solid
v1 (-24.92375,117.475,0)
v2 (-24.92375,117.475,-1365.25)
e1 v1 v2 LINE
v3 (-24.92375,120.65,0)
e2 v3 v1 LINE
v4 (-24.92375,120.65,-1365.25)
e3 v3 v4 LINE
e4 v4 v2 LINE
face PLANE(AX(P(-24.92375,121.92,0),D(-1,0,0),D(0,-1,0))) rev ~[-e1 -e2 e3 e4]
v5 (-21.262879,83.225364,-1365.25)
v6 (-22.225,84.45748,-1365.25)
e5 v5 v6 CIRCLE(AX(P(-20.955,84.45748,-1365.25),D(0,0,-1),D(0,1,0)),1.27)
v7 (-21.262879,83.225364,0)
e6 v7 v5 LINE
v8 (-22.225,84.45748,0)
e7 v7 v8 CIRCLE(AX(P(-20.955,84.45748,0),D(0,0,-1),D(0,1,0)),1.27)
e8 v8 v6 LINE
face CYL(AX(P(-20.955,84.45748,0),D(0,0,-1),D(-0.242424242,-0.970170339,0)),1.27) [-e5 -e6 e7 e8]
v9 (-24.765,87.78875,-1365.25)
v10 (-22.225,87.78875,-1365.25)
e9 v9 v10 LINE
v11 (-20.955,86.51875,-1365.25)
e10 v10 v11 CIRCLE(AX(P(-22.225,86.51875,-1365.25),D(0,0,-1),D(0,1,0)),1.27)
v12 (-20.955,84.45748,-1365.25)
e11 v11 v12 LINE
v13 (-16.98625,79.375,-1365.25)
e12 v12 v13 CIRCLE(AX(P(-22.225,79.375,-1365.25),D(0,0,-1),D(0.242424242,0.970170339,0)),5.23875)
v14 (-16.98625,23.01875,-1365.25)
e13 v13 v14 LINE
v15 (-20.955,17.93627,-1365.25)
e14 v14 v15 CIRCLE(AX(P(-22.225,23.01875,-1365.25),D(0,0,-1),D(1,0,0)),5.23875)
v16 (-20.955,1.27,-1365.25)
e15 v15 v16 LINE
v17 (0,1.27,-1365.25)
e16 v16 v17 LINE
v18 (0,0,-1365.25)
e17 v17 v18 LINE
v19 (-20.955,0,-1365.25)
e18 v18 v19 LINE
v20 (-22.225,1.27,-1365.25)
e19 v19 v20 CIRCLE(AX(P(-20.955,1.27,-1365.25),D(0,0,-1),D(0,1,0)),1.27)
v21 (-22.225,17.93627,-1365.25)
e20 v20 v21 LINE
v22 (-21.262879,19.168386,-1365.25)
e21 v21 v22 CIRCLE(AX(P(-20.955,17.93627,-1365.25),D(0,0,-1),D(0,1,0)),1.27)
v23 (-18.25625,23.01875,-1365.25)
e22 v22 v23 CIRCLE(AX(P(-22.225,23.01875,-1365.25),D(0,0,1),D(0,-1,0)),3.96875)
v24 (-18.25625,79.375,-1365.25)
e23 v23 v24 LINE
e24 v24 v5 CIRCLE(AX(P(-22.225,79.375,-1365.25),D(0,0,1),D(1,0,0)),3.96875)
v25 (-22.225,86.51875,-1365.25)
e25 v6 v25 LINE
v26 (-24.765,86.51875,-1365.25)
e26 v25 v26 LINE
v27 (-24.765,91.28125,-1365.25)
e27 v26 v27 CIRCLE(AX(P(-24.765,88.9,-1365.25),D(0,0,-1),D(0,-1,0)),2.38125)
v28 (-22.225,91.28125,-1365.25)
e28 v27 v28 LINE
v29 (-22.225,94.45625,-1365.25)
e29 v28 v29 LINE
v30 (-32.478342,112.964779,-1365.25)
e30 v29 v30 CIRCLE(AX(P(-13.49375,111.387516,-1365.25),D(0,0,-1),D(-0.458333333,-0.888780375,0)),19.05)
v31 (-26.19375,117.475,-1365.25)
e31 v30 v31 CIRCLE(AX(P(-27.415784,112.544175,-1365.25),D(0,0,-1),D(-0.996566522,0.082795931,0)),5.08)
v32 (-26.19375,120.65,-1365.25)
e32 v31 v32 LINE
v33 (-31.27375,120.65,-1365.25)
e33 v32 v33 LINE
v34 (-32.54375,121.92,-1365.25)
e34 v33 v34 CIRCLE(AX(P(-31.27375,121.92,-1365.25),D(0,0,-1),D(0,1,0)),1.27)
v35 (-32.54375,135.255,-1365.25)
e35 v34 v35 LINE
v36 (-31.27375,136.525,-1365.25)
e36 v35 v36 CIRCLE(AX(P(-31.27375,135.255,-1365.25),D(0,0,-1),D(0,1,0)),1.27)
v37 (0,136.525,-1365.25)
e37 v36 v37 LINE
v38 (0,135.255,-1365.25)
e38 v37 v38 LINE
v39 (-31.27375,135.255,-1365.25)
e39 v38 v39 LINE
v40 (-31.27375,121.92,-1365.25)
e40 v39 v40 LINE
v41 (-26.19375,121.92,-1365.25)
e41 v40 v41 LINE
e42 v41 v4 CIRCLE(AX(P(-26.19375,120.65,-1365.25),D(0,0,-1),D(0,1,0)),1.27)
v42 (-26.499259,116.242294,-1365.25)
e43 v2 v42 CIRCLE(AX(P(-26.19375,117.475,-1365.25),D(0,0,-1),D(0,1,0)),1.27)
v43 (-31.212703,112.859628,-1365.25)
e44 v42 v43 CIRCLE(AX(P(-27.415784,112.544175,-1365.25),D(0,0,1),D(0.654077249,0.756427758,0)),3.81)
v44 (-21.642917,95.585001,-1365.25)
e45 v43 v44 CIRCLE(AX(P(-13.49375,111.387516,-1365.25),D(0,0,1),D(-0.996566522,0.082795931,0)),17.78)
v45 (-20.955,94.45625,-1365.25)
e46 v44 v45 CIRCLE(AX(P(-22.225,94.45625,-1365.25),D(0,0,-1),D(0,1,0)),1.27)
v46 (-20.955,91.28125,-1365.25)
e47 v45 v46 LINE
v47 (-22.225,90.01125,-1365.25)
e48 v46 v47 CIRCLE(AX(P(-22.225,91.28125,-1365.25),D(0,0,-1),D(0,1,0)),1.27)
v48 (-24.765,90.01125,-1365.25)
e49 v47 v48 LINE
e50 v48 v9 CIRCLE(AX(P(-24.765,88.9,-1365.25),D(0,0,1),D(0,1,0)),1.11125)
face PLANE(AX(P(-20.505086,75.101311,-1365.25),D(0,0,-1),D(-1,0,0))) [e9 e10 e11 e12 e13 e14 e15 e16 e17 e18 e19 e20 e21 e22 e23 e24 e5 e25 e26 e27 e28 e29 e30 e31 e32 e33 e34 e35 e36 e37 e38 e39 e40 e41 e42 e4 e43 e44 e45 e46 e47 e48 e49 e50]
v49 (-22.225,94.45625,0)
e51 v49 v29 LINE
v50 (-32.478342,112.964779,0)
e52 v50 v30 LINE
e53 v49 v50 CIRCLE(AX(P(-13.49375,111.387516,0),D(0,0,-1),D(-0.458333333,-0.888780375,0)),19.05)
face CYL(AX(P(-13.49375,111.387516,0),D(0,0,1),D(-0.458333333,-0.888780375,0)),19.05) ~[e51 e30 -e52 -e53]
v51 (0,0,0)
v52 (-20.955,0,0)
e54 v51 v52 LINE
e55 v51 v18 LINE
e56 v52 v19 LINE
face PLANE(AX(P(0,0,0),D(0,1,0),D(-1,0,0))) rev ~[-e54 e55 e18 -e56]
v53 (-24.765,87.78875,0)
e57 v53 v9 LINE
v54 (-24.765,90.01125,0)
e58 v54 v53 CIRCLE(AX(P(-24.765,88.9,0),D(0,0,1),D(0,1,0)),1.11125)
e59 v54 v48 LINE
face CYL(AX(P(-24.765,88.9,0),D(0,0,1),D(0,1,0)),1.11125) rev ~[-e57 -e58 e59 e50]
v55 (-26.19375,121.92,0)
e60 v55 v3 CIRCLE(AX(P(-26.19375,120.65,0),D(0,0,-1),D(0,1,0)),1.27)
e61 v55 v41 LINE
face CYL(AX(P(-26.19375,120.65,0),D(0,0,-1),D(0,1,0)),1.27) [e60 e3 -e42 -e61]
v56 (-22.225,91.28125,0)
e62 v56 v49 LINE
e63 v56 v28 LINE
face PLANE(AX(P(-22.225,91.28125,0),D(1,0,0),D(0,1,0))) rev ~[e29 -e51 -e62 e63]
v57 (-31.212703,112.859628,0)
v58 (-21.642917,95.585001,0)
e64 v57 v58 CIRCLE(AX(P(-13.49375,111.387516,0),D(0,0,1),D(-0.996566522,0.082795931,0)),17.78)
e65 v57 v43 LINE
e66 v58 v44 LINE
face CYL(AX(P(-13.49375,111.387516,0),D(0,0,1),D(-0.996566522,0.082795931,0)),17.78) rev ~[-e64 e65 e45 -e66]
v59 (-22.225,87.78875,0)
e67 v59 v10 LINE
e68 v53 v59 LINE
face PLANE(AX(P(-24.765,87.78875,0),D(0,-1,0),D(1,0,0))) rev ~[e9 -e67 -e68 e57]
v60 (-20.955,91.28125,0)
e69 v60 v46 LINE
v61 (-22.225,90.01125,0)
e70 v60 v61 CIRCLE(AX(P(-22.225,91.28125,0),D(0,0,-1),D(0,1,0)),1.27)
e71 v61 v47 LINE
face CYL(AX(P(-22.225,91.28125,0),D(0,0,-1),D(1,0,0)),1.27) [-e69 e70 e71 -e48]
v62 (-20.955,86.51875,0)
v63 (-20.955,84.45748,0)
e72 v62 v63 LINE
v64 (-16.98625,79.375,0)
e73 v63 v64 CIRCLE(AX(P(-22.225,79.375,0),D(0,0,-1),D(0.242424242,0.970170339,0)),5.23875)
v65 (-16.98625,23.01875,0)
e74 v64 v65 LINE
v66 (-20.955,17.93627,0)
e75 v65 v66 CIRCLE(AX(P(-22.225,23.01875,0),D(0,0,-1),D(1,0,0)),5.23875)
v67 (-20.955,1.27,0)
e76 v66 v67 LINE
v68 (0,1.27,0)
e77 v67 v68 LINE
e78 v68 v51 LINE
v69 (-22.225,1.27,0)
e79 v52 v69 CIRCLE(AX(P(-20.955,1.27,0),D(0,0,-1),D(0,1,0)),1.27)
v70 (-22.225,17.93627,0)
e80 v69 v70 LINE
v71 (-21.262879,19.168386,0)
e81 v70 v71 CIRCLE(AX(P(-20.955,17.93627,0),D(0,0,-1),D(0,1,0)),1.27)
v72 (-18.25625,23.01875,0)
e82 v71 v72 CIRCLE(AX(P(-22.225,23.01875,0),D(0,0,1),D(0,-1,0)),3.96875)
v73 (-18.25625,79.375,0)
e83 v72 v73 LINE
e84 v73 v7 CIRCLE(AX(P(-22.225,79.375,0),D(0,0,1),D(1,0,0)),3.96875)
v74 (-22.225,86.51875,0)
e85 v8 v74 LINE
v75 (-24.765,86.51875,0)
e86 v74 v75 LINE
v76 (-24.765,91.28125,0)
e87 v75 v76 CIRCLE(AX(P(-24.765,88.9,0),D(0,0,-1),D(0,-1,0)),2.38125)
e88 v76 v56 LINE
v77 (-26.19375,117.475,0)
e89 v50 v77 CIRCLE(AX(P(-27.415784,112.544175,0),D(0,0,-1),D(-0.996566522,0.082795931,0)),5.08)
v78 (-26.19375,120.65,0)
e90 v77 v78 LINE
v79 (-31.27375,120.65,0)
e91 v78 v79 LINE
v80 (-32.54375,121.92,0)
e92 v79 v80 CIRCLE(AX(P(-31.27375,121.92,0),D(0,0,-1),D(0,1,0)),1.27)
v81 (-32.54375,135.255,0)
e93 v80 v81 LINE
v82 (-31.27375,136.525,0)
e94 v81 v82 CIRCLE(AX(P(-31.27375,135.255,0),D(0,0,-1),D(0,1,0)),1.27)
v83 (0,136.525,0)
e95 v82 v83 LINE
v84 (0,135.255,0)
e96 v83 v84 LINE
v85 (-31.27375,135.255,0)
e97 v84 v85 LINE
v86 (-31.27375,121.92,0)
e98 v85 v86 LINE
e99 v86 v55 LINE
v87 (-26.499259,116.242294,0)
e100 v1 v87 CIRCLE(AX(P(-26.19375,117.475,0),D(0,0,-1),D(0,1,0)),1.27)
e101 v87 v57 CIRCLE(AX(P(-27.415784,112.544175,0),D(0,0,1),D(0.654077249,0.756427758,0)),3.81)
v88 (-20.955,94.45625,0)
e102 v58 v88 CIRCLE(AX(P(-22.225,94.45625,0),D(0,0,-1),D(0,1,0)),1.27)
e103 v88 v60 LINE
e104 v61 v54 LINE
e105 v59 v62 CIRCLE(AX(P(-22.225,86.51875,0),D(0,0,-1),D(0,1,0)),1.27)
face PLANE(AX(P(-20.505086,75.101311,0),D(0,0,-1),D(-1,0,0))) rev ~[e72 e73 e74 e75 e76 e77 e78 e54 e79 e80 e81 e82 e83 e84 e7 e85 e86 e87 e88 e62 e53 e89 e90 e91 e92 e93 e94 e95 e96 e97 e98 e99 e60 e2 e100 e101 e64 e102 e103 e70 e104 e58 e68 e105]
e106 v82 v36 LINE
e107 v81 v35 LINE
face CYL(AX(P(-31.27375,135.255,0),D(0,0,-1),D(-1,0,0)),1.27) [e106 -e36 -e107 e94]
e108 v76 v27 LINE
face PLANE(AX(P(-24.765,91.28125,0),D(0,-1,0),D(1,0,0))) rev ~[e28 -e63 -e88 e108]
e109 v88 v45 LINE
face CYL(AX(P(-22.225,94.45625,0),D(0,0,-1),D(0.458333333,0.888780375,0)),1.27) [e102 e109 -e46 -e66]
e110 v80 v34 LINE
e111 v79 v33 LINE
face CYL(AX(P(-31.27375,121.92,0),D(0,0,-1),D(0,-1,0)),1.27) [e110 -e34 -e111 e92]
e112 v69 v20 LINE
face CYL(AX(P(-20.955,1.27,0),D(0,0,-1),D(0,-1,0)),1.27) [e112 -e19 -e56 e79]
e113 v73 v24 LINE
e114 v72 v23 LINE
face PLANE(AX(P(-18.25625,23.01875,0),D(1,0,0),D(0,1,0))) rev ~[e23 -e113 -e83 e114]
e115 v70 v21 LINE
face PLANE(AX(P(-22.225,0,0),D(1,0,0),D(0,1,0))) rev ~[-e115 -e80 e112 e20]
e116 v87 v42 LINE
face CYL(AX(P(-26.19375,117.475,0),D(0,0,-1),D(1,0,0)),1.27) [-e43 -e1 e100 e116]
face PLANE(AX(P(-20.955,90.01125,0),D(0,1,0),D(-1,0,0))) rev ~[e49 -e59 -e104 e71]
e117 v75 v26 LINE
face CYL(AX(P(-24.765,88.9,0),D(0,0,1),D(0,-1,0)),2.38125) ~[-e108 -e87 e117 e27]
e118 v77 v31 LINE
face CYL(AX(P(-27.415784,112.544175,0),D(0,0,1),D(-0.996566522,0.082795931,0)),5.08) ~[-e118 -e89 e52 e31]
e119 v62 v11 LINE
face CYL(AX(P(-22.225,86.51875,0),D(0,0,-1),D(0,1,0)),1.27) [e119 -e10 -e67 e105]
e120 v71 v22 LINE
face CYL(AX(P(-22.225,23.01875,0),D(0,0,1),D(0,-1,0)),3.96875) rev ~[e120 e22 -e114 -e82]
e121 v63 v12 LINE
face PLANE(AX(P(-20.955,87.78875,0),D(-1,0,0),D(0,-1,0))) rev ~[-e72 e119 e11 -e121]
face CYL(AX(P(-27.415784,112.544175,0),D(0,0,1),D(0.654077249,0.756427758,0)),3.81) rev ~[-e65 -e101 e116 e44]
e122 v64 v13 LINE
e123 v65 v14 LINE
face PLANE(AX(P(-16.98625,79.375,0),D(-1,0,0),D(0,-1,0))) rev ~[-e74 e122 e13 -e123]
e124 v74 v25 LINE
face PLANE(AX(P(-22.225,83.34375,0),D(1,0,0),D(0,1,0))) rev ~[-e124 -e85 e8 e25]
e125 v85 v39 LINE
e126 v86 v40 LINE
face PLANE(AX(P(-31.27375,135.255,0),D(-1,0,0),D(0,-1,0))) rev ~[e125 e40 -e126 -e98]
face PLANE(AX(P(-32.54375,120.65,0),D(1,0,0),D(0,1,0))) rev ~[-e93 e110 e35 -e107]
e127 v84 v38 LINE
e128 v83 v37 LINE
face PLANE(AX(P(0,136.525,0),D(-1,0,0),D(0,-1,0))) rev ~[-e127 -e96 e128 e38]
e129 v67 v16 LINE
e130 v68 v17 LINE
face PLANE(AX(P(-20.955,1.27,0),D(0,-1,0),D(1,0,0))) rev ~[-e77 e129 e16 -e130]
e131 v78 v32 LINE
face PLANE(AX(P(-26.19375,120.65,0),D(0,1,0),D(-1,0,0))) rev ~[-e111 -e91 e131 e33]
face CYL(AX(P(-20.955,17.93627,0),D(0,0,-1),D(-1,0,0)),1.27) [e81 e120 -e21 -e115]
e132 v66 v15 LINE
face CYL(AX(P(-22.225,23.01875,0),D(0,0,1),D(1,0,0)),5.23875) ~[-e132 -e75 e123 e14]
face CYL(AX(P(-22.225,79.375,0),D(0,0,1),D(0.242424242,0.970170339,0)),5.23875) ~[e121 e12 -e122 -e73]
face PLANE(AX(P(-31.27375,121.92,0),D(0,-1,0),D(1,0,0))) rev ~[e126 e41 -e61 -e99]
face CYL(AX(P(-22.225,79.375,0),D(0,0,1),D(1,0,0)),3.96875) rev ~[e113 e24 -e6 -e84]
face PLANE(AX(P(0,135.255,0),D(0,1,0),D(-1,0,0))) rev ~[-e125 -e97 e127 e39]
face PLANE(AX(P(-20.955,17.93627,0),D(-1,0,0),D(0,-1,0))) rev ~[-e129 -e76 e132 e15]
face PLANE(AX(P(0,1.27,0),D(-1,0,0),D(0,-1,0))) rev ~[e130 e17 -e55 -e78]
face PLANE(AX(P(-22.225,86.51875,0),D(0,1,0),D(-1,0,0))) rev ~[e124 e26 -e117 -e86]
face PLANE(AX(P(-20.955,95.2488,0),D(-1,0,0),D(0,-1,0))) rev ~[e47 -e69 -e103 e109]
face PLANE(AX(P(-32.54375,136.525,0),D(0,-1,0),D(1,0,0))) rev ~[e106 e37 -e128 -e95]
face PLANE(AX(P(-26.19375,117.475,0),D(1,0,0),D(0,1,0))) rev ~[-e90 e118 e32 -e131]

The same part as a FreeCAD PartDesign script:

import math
import FreeCAD as App
import Part
import Sketcher
Q = App.Units.Quantity


def edges_at(feature, points):
    """Names of the edges that pass closest to the given points."""
    edges = feature.Shape.Edges
    near = lambda p: min(range(len(edges)), key=lambda i: edges[i].distToShape(Part.Vertex(*p))[0])
    return sorted({f"Edge{near(p) + 1}" for p in points})

doc = App.newDocument("Part")
body = doc.addObject("PartDesign::Body", "Body")

sketch1 = doc.addObject("Sketcher::SketchObject", "Sketch")
body.addObject(sketch1)
sketch1.AttachmentSupport = (doc.XY_Plane, [""])
sketch1.MapMode = "FlatFace"
sketch1.addGeometry([
    Part.LineSegment(App.Vector(-22.2, 0, 0), App.Vector(0, 0, 0)),
    Part.LineSegment(App.Vector(0, 0, 0), App.Vector(0, 1.3, 0)),
    Part.LineSegment(App.Vector(0, 1.3, 0), App.Vector(-21, 1.3, 0)),
    Part.LineSegment(App.Vector(-21, 1.3, 0), App.Vector(-21, 17.9, 0)),
    Part.ArcOfCircle(Part.Circle(App.Vector(-22.2, 23, 0), App.Vector(0, 0, 1), 5.2), math.radians(-76), math.radians(0)),
    Part.LineSegment(App.Vector(-17, 23, 0), App.Vector(-17, 79.4, 0)),
    Part.ArcOfCircle(Part.Circle(App.Vector(-22.2, 79.4, 0), App.Vector(0, 0, 1), 5.2), math.radians(0), math.radians(76)),
    Part.LineSegment(App.Vector(-21, 84.5, 0), App.Vector(-21, 87.8, 0)),
    Part.LineSegment(App.Vector(-21, 87.8, 0), App.Vector(-24.8, 87.8, 0)),
    Part.ArcOfCircle(Part.Circle(App.Vector(-24.8, 88.9, 0), App.Vector(0, 0, 1), 1.1), math.radians(90), math.radians(270)),
    Part.LineSegment(App.Vector(-24.8, 90, 0), App.Vector(-21, 90, 0)),
    Part.LineSegment(App.Vector(-21, 90, 0), App.Vector(-21, 95.2, 0)),
    Part.ArcOfCircle(Part.Circle(App.Vector(-13.5, 111.4, 0), App.Vector(0, 0, 1), 17.8), math.radians(175), math.radians(245)),
    Part.ArcOfCircle(Part.Circle(App.Vector(-27.4, 112.5, 0), App.Vector(0, 0, 1), 3.8), math.radians(49), math.radians(175)),
    Part.LineSegment(App.Vector(-24.9, 115.4, 0), App.Vector(-24.9, 121.9, 0)),
    Part.LineSegment(App.Vector(-24.9, 121.9, 0), App.Vector(-31.3, 121.9, 0)),
    Part.LineSegment(App.Vector(-31.3, 121.9, 0), App.Vector(-31.3, 135.3, 0)),
    Part.LineSegment(App.Vector(-31.3, 135.3, 0), App.Vector(0, 135.3, 0)),
    Part.LineSegment(App.Vector(0, 135.3, 0), App.Vector(0, 136.5, 0)),
    Part.LineSegment(App.Vector(0, 136.5, 0), App.Vector(-32.5, 136.5, 0)),
    Part.LineSegment(App.Vector(-32.5, 136.5, 0), App.Vector(-32.5, 120.7, 0)),
    Part.LineSegment(App.Vector(-32.5, 120.7, 0), App.Vector(-26.2, 120.7, 0)),
    Part.LineSegment(App.Vector(-26.2, 120.7, 0), App.Vector(-26.2, 117.5, 0)),
    Part.ArcOfCircle(Part.Circle(App.Vector(-27.4, 112.5, 0), App.Vector(0, 0, 1), 5.1), math.radians(76), math.radians(175)),
    Part.ArcOfCircle(Part.Circle(App.Vector(-13.5, 111.4, 0), App.Vector(0, 0, 1), 19.1), math.radians(175), math.radians(243)),
    Part.LineSegment(App.Vector(-22.2, 94.5, 0), App.Vector(-22.2, 91.3, 0)),
    Part.LineSegment(App.Vector(-22.2, 91.3, 0), App.Vector(-24.8, 91.3, 0)),
    Part.ArcOfCircle(Part.Circle(App.Vector(-24.8, 88.9, 0), App.Vector(0, 0, 1), 2.4), math.radians(90), math.radians(270)),
    Part.LineSegment(App.Vector(-24.8, 86.5, 0), App.Vector(-22.2, 86.5, 0)),
    Part.LineSegment(App.Vector(-22.2, 86.5, 0), App.Vector(-22.2, 83.3, 0)),
    Part.ArcOfCircle(Part.Circle(App.Vector(-22.2, 79.4, 0), App.Vector(0, 0, 1), 4), math.radians(0), math.radians(90)),
    Part.LineSegment(App.Vector(-18.3, 79.4, 0), App.Vector(-18.3, 23, 0)),
    Part.ArcOfCircle(Part.Circle(App.Vector(-22.2, 23, 0), App.Vector(0, 0, 1), 4), math.radians(-90), math.radians(0)),
    Part.LineSegment(App.Vector(-22.2, 19.1, 0), App.Vector(-22.2, 0, 0)),
], False)
sketch1.addConstraint([
    Sketcher.Constraint("Coincident", 0, 2, 1, 1),
    Sketcher.Constraint("Coincident", 1, 2, 2, 1),
    Sketcher.Constraint("Coincident", 2, 2, 3, 1),
    Sketcher.Constraint("Coincident", 3, 2, 4, 1),
    Sketcher.Constraint("Tangent", 4, 2, 5, 1),
    Sketcher.Constraint("Tangent", 5, 2, 6, 1),
    Sketcher.Constraint("Coincident", 6, 2, 7, 1),
    Sketcher.Constraint("Coincident", 7, 2, 8, 1),
    Sketcher.Constraint("Tangent", 8, 2, 9, 2),
    Sketcher.Constraint("Tangent", 9, 1, 10, 1),
    Sketcher.Constraint("Coincident", 10, 2, 11, 1),
    Sketcher.Constraint("Coincident", 11, 2, 12, 2),
    Sketcher.Constraint("Tangent", 12, 1, 13, 2),
    Sketcher.Constraint("Coincident", 13, 1, 14, 1),
    Sketcher.Constraint("Coincident", 14, 2, 15, 1),
    Sketcher.Constraint("Coincident", 15, 2, 16, 1),
    Sketcher.Constraint("Coincident", 16, 2, 17, 1),
    Sketcher.Constraint("Coincident", 17, 2, 18, 1),
    Sketcher.Constraint("Coincident", 18, 2, 19, 1),
    Sketcher.Constraint("Coincident", 19, 2, 20, 1),
    Sketcher.Constraint("Coincident", 20, 2, 21, 1),
    Sketcher.Constraint("Coincident", 21, 2, 22, 1),
    Sketcher.Constraint("Coincident", 22, 2, 23, 1),
    Sketcher.Constraint("Tangent", 23, 2, 24, 1),
    Sketcher.Constraint("Coincident", 24, 2, 25, 1),
    Sketcher.Constraint("Coincident", 25, 2, 26, 1),
    Sketcher.Constraint("Tangent", 26, 2, 27, 1),
    Sketcher.Constraint("Tangent", 27, 2, 28, 1),
    Sketcher.Constraint("Coincident", 28, 2, 29, 1),
    Sketcher.Constraint("Coincident", 29, 2, 30, 2),
    Sketcher.Constraint("Tangent", 30, 1, 31, 1),
    Sketcher.Constraint("Tangent", 31, 2, 32, 2),
    Sketcher.Constraint("Coincident", 32, 1, 33, 1),
    Sketcher.Constraint("Coincident", 33, 2, 0, 1),
    Sketcher.Constraint("Horizontal", 0),
    Sketcher.Constraint("Vertical", 1),
    Sketcher.Constraint("Horizontal", 2),
    Sketcher.Constraint("Vertical", 3),
    Sketcher.Constraint("Vertical", 5),
    Sketcher.Constraint("Vertical", 7),
    Sketcher.Constraint("Horizontal", 8),
    Sketcher.Constraint("Horizontal", 10),
    Sketcher.Constraint("Vertical", 11),
    Sketcher.Constraint("Vertical", 14),
    Sketcher.Constraint("Horizontal", 15),
    Sketcher.Constraint("Vertical", 16),
    Sketcher.Constraint("Horizontal", 17),
    Sketcher.Constraint("Vertical", 18),
    Sketcher.Constraint("Horizontal", 19),
    Sketcher.Constraint("Vertical", 20),
    Sketcher.Constraint("Horizontal", 21),
    Sketcher.Constraint("Vertical", 22),
    Sketcher.Constraint("Vertical", 25),
    Sketcher.Constraint("Horizontal", 26),
    Sketcher.Constraint("Horizontal", 28),
    Sketcher.Constraint("Vertical", 29),
    Sketcher.Constraint("Vertical", 31),
    Sketcher.Constraint("Vertical", 33),
    Sketcher.Constraint("Coincident", 0, 2, -1, 1),
    Sketcher.Constraint("Coincident", 23, 3, 13, 3),
    Sketcher.Constraint("Coincident", 24, 3, 12, 3),
    Sketcher.Constraint("Coincident", 27, 3, 9, 3),
    Sketcher.Constraint("Coincident", 30, 3, 6, 3),
    Sketcher.Constraint("Coincident", 32, 3, 4, 3),
    Sketcher.Constraint("Equal", 4, 6),
    Sketcher.Constraint("PointOnObject", 17, 2, -2),
    Sketcher.Constraint("Vertical", 3, 2, 6, 2),
    Sketcher.Constraint("Vertical", 7, 2, 10, 2),
    Sketcher.Constraint("Vertical", 32, 3, 24, 2),
    Sketcher.Constraint("Vertical", 25, 2, 28, 2),
    Sketcher.Constraint("Vertical", 29, 2, 32, 1),
    Sketcher.Constraint("Equal", 15, 21),
    Sketcher.Constraint("Equal", 1, 18),
    Sketcher.Constraint("Equal", 22, 25),
    Sketcher.Constraint("Equal", 25, 29),
    Sketcher.Constraint("Radius", 12, Q("0.7 in")),
    Sketcher.Constraint("Radius", 23, Q("0.2 in")),
    Sketcher.Constraint("Radius", 13, Q("0.15 in")),
    Sketcher.Constraint("DistanceX", 26, 2, 26, 1, Q("0.1 in")),
    Sketcher.Constraint("Radius", 27, Q("0.09375 in")),
    Sketcher.Constraint("Radius", 30, Q("0.15625 in")),
    Sketcher.Constraint("DistanceX", 8, 2, 8, 1, Q("0.15 in")),
    Sketcher.Constraint("DistanceX", 15, 2, 15, 1, Q("0.25 in")),
    Sketcher.Constraint("DistanceY", 1, 1, 1, 2, Q("0.05 in")),
    Sketcher.Constraint("DistanceY", 33, 2, 33, 1, Q("0.75 in")),
    Sketcher.Constraint("DistanceY", -1, 1, 9, 3, Q("3.5 in")),
    Sketcher.Constraint("DistanceY", -1, 1, 14, 2, Q("4.8 in")),
    Sketcher.Constraint("DistanceX", 19, 2, 14, 2, Q("0.3 in")),
    Sketcher.Constraint("DistanceX", 0, 1, 0, 2, Q("0.875 in")),
    Sketcher.Constraint("DistanceX", 19, 2, 19, 1, Q("1.28125 in")),
    Sketcher.Constraint("DistanceY", 5, 1, 5, 2, Q("2.21875 in")),
    Sketcher.Constraint("DistanceY", 16, 1, 16, 2, Q("0.525 in")),
    Sketcher.Constraint("DistanceY", 20, 2, 20, 1, Q("0.625 in")),
    Sketcher.Constraint("DistanceX", 13, 1, 12, 3, Q("0.45 in")),
    Sketcher.Constraint("DistanceY", 10, 2, 25, 2, Q("0.05 in")),
    Sketcher.Constraint("DistanceX", 30, 1, 5, 2, Q("0.05 in")),
])
pad1 = doc.addObject("PartDesign::Pad", "Pad")
body.addObject(pad1)
pad1.Profile = sketch1
pad1.Length = Q("53.75 in")
pad1.Reversed = True
doc.recompute()

fillet = doc.addObject("PartDesign::Fillet", "Fillet")
body.addObject(fillet)
fillet.Base = (pad1, edges_at(pad1, [
    (-24.924, 121.92, -682.625),
    (-24.924, 115.426, -682.625),
    (-20.955, 95.249, -682.625),
    (-20.955, 90.011, -682.625),
    (-20.955, 87.789, -682.625),
    (-22.225, 0, -682.625),
    (-22.225, 19.05, -682.625),
    (-22.225, 83.344, -682.625),
    (-32.544, 120.65, -682.625),
    (-32.544, 136.525, -682.625),
]))
fillet.Radius = Q("0.05 in")

doc.recompute()
